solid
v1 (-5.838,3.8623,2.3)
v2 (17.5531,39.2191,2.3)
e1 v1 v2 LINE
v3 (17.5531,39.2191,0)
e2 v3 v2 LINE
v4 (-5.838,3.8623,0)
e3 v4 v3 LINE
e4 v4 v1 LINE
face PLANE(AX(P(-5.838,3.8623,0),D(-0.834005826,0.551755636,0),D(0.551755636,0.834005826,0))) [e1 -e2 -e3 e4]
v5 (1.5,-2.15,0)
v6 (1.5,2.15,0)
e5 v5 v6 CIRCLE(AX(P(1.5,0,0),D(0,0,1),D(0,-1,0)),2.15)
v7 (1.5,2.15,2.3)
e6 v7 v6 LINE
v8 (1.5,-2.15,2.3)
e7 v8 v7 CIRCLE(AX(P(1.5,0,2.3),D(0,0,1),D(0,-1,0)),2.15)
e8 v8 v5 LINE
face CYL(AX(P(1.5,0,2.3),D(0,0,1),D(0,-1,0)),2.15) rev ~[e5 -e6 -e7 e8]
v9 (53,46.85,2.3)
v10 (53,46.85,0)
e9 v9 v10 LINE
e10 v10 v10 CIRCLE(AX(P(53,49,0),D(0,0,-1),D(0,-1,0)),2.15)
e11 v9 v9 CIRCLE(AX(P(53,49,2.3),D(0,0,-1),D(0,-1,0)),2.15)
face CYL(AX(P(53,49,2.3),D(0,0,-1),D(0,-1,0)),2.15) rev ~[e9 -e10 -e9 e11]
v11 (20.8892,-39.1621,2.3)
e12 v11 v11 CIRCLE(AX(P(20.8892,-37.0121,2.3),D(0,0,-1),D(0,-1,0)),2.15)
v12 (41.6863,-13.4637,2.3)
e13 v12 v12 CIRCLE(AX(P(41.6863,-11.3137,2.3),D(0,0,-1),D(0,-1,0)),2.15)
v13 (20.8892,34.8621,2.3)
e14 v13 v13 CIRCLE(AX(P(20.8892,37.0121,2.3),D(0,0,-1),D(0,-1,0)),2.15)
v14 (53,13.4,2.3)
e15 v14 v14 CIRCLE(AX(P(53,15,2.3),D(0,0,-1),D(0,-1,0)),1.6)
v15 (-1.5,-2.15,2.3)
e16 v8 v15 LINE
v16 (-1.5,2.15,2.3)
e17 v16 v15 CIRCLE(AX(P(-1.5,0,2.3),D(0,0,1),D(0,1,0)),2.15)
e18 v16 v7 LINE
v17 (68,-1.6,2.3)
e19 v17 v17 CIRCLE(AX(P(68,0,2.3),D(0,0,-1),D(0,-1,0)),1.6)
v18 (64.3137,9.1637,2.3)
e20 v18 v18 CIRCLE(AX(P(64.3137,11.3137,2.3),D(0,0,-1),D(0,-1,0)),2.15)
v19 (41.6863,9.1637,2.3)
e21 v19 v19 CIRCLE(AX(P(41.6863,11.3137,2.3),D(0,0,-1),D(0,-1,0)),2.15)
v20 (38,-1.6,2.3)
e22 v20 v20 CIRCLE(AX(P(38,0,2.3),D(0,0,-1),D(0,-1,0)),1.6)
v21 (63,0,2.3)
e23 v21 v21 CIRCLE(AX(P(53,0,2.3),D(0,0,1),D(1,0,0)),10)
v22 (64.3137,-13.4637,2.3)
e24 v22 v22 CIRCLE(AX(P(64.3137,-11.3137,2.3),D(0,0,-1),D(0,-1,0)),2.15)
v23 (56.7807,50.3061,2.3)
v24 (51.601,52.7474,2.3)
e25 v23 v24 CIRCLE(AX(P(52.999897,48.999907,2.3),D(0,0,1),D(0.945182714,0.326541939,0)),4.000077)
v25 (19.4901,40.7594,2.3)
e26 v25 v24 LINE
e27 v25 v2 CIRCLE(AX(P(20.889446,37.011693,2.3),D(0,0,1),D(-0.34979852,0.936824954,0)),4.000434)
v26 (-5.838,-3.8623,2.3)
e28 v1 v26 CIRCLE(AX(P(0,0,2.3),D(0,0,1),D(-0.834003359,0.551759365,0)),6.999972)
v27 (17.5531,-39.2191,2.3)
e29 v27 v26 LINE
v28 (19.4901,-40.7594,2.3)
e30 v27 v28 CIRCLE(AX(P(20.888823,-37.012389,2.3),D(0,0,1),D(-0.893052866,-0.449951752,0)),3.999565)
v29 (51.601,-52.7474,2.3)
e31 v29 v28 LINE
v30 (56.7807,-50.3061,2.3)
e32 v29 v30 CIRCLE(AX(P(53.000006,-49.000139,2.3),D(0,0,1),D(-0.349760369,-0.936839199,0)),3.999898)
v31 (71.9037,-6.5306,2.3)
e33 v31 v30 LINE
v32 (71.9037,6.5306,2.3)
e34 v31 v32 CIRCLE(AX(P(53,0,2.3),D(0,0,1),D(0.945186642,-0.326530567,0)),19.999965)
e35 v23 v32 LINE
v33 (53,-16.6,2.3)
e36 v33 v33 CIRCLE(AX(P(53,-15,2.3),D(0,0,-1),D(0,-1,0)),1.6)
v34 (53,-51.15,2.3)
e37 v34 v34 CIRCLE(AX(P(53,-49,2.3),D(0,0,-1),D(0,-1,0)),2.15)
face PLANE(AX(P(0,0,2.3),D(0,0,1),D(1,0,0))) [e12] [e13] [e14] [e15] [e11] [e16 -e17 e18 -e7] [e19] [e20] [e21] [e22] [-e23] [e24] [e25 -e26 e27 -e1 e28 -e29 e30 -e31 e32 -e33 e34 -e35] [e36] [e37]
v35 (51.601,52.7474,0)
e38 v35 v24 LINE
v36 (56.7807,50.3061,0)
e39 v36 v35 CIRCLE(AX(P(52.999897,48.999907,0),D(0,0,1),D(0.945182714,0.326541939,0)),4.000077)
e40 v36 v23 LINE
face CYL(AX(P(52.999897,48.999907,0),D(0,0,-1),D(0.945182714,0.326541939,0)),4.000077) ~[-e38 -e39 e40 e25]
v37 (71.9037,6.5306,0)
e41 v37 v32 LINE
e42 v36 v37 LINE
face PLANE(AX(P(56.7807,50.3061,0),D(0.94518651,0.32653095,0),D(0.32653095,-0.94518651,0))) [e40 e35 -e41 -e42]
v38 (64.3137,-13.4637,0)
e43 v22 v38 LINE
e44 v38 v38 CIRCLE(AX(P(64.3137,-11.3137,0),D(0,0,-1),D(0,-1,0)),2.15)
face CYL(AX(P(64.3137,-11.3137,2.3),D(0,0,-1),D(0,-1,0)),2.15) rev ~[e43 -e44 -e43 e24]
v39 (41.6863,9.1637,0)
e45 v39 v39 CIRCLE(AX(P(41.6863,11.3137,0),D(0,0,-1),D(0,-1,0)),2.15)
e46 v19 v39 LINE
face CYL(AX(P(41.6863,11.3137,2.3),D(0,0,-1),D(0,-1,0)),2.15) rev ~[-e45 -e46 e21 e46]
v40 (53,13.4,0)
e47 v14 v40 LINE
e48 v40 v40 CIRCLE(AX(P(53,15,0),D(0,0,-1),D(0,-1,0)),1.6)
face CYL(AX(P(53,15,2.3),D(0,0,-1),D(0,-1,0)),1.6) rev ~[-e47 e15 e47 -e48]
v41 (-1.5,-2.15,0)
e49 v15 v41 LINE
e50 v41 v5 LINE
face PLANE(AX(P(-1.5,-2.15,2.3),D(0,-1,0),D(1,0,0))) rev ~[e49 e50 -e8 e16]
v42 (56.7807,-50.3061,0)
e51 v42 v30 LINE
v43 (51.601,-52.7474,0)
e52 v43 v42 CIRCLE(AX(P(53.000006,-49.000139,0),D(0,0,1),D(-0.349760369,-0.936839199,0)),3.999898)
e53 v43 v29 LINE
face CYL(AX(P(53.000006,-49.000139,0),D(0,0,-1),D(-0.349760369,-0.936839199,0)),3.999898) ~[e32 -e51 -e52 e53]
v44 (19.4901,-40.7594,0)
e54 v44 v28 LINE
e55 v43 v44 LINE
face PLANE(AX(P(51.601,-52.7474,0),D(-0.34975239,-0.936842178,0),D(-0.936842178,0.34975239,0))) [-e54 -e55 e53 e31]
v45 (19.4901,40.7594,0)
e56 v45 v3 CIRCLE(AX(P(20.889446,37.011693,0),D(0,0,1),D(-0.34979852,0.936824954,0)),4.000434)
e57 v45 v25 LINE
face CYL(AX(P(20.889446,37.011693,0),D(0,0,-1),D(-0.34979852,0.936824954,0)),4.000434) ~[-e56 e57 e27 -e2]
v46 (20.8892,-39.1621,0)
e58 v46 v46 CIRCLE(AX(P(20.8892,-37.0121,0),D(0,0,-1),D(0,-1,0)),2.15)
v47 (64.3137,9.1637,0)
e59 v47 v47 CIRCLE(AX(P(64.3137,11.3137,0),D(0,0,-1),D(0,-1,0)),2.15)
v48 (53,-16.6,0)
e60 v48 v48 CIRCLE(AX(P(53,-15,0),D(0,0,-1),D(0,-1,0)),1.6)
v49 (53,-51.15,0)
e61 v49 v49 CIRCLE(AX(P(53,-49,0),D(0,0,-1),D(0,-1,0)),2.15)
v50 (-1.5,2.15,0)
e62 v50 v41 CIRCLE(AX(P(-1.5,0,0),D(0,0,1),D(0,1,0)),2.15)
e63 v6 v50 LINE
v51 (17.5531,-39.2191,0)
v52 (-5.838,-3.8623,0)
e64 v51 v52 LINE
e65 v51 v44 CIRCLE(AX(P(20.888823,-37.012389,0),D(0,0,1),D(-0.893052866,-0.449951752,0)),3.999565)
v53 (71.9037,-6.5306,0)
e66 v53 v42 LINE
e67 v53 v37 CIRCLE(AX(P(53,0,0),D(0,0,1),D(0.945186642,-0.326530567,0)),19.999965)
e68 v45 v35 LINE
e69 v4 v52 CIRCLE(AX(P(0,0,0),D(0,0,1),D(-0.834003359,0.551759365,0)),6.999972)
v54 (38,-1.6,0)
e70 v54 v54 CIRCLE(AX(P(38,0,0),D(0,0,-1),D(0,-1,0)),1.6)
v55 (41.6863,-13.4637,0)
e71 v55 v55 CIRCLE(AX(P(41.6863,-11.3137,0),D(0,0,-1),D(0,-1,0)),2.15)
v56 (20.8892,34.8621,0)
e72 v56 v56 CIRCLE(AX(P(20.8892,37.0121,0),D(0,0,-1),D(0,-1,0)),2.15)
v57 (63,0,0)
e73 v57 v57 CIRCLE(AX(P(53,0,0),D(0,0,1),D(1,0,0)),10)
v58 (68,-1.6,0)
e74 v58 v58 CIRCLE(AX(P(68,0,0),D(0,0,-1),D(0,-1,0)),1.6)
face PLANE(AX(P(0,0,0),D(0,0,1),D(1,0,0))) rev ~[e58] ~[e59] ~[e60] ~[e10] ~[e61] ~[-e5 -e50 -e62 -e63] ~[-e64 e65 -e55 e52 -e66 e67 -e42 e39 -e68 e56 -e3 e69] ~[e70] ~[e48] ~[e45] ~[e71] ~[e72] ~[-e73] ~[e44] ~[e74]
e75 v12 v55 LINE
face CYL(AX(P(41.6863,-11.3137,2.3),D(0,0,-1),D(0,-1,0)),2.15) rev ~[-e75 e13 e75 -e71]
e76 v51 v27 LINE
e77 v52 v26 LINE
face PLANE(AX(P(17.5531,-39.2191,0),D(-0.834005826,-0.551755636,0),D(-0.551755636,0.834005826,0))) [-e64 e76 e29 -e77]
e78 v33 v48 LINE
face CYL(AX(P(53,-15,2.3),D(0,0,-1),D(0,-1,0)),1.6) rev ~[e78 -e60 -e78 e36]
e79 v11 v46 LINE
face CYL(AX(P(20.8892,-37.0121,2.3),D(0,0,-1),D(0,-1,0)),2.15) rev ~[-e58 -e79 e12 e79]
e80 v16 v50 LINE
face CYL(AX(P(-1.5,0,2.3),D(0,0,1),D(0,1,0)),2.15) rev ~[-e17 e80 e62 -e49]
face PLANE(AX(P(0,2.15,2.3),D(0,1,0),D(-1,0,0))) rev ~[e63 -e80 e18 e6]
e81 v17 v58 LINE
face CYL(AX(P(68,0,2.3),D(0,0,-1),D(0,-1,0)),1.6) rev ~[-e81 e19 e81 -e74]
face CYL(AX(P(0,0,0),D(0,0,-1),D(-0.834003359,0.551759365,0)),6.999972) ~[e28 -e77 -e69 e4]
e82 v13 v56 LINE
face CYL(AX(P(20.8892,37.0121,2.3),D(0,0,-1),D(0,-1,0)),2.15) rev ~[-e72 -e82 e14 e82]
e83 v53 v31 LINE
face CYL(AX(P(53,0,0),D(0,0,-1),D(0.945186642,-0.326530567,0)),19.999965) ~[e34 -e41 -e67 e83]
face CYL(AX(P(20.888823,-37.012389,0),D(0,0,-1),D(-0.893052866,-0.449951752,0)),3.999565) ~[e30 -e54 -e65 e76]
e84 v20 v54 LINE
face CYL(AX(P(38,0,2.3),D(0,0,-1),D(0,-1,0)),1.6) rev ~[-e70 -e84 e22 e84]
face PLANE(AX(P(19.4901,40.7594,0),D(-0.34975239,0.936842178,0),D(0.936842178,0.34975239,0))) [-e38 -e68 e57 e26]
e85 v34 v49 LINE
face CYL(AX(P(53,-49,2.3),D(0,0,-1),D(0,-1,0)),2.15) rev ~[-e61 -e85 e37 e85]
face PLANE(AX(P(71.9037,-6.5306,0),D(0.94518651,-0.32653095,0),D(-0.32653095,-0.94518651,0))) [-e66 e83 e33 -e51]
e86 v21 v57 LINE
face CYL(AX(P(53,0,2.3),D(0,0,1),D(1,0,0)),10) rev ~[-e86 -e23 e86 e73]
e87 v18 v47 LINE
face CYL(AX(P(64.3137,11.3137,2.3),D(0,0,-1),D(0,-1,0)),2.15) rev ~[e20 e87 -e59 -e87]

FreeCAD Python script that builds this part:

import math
import FreeCAD as App
import Part
import Sketcher
from FreeCAD import Vector
Q = App.Units.Quantity

doc = App.newDocument("Part")
body = doc.addObject("PartDesign::Body", "Body")

# Sketch on XY plane
sketch1 = doc.addObject("Sketcher::SketchObject", "Sketch")
body.addObject(sketch1)
sketch1.AttachmentSupport = (doc.XY_Plane, [""])
sketch1.MapMode = "FlatFace"
sketch1.addGeometry([
    Part.LineSegment(Vector(56.7807, -50.3061, 0), Vector(71.9037, -6.5306, 0)),  # 0
    Part.ArcOfCircle(Part.Circle(Vector(53, 0, 0), Vector(0, 0, 1), 19.999965), math.radians(-19.05833), math.radians(19.05833)),  # 1
    Part.LineSegment(Vector(71.9037, 6.5306, 0), Vector(56.7807, 50.3061, 0)),  # 2
    Part.ArcOfCircle(Part.Circle(Vector(53, 49, 0), Vector(0, 0, 1), 3.999949), math.radians(19.058246), math.radians(110.471886)),  # 3
    Part.LineSegment(Vector(51.601, 52.7474, 0), Vector(19.4901, 40.7594, 0)),  # 4
    Part.ArcOfCircle(Part.Circle(Vector(20.8892, 37.0121, 0), Vector(0, 0, 1), 3.999967), math.radians(110.473729), math.radians(146.513335)),  # 5
    Part.LineSegment(Vector(17.5531, 39.2191, 0), Vector(-5.838, 3.8623, 0)),  # 6
    Part.ArcOfCircle(Part.Circle(Vector(0, 0, 0), Vector(0, 0, 1), 6.999972), math.radians(146.512203), math.radians(213.487797)),  # 7
    Part.LineSegment(Vector(-5.838, -3.8623, 0), Vector(17.5531, -39.2191, 0)),  # 8
    Part.ArcOfCircle(Part.Circle(Vector(20.8892, -37.0121, 0), Vector(0, 0, 1), 4.000032), math.radians(-146.513335), math.radians(-110.473729)),  # 9
    Part.LineSegment(Vector(19.4901, -40.7594, 0), Vector(51.601, -52.7474, 0)),  # 10
    Part.ArcOfCircle(Part.Circle(Vector(53, -49, 0), Vector(0, 0, 1), 4.000026), math.radians(-110.471886), math.radians(-19.058246)),  # 11
], False)
sketch1.addConstraint([
    Sketcher.Constraint("Tangent", 0, 2, 1, 1),
    Sketcher.Constraint("Tangent", 1, 2, 2, 1),
    Sketcher.Constraint("Tangent", 2, 2, 3, 1),
    Sketcher.Constraint("Tangent", 3, 2, 4, 1),
    Sketcher.Constraint("Tangent", 4, 2, 5, 1),
    Sketcher.Constraint("Tangent", 5, 2, 6, 1),
    Sketcher.Constraint("Tangent", 6, 2, 7, 1),
    Sketcher.Constraint("Tangent", 7, 2, 8, 1),
    Sketcher.Constraint("Tangent", 8, 2, 9, 1),
    Sketcher.Constraint("Tangent", 9, 2, 10, 1),
    Sketcher.Constraint("Tangent", 10, 2, 11, 1),
    Sketcher.Constraint("Tangent", 11, 2, 0, 1),
    Sketcher.Constraint("Coincident", 7, 3, -1, 1),
    Sketcher.Constraint("Equal", 3, 5),
    Sketcher.Constraint("Equal", 5, 9),
    Sketcher.Constraint("Equal", 9, 11),
    Sketcher.Constraint("Symmetric", 5, 3, 9, 3, -1),
    Sketcher.Constraint("Symmetric", 3, 3, 11, 3, -1),
    Sketcher.Constraint("PointOnObject", 1, 3, -1),
    Sketcher.Constraint("Vertical", 1, 3, 3, 3),
    Sketcher.Constraint("Radius", 1, Q("20 mm")),
    Sketcher.Constraint("Radius", 3, Q("4 mm")),
    Sketcher.Constraint("Radius", 7, Q("7 mm")),
    Sketcher.Constraint("DistanceX", -1, 1, 1, 3, Q("53 mm")),
    Sketcher.Constraint("DistanceY", 11, 3, 3, 3, Q("98 mm")),
    Sketcher.Constraint("DistanceX", -1, 1, 4, 2, Q("19.49 mm")),
    Sketcher.Constraint("Distance", 6, Q("42.394 mm")),
])
pad1 = doc.addObject("PartDesign::Pad", "Pad")
body.addObject(pad1)
pad1.Profile = sketch1
pad1.Length = 2.3

# Sketch on XY plane
sketch2 = doc.addObject("Sketcher::SketchObject", "Sketch001")
body.addObject(sketch2)
sketch2.AttachmentSupport = (doc.XY_Plane, [""])
sketch2.MapMode = "FlatFace"
sketch2.AttachmentOffset = App.Placement(Vector(0, 0, 2.3), App.Rotation())
sketch2.addGeometry([
    Part.Circle(Vector(53, 49, 0), Vector(0, 0, 1), 2.15),
    Part.Circle(Vector(53, -49, 0), Vector(0, 0, 1), 2.15),
    Part.Circle(Vector(20.8892, 37.0121, 0), Vector(0, 0, 1), 2.15),
    Part.Circle(Vector(20.8892, -37.0121, 0), Vector(0, 0, 1), 2.15),
], False)
sketch2.addConstraint([
    Sketcher.Constraint("Equal", 0, 1),
    Sketcher.Constraint("Equal", 1, 2),
    Sketcher.Constraint("Equal", 2, 3),
    Sketcher.Constraint("Symmetric", 0, 3, 1, 3, -1),
    Sketcher.Constraint("Symmetric", 2, 3, 3, 3, -1),
    Sketcher.Constraint("Diameter", 0, Q("4.3 mm")),
    Sketcher.Constraint("DistanceX", -1, 1, 0, 3, Q("53 mm")),
    Sketcher.Constraint("DistanceY", -1, 1, 0, 3, Q("49 mm")),
    Sketcher.Constraint("DistanceY", -1, 1, 2, 3, Q("37.012 mm")),
    Sketcher.Constraint("DistanceX", -1, 1, 2, 3, Q("20.8892 mm")),
])
doc.recompute()
hole = doc.addObject("PartDesign::Hole", "Hole")
body.addObject(hole)
hole.Profile = sketch2
hole.ThreadType = "None"
hole.Diameter = 4.3
hole.DepthType = "Dimension"
hole.Depth = 2.3
hole.DrillPoint = "Flat"

# Sketch on XY plane
sketch3 = doc.addObject("Sketcher::SketchObject", "Sketch002")
body.addObject(sketch3)
sketch3.AttachmentSupport = (doc.XY_Plane, [""])
sketch3.MapMode = "FlatFace"
sketch3.AttachmentOffset = App.Placement(Vector(0, 0, 2.3), App.Rotation())
sketch3.addGeometry(Part.Circle(Vector(53, 0, 0), Vector(0, 0, 1), 10), False)
sketch3.addConstraint([
    Sketcher.Constraint("PointOnObject", 0, 3, -1),
    Sketcher.Constraint("Diameter", 0, Q("20 mm")),
    Sketcher.Constraint("DistanceX", -1, 1, 0, 3, Q("53 mm")),
])
pocket1 = doc.addObject("PartDesign::Pocket", "Pocket")
body.addObject(pocket1)
pocket1.Profile = sketch3
pocket1.Length = 10

# Sketch on XY plane
sketch4 = doc.addObject("Sketcher::SketchObject", "Sketch003")
body.addObject(sketch4)
sketch4.AttachmentSupport = (doc.XY_Plane, [""])
sketch4.MapMode = "FlatFace"
sketch4.AttachmentOffset = App.Placement(Vector(0, 0, 2.3), App.Rotation())
sketch4.addGeometry([
    Part.Circle(Vector(38, 0, 0), Vector(0, 0, 1), 1.6),
    Part.Circle(Vector(53, -15, 0), Vector(0, 0, 1), 1.6),
    Part.Circle(Vector(68, 0, 0), Vector(0, 0, 1), 1.6),
    Part.Circle(Vector(53, 15, 0), Vector(0, 0, 1), 1.6),
], False)
sketch4.addConstraint([
    Sketcher.Constraint("Equal", 0, 1),
    Sketcher.Constraint("Equal", 1, 2),
    Sketcher.Constraint("Equal", 2, 3),
    Sketcher.Constraint("Symmetric", 1, 3, 3, 3, -1),
    Sketcher.Constraint("PointOnObject", 0, 3, -1),
    Sketcher.Constraint("PointOnObject", 2, 3, -1),
    Sketcher.Constraint("Diameter", 0, Q("3.2 mm")),
    Sketcher.Constraint("DistanceX", -1, 1, 0, 3, Q("38 mm")),
    Sketcher.Constraint("DistanceX", -1, 1, 1, 3, Q("53 mm")),
    Sketcher.Constraint("DistanceY", 1, 3, -1, 1, Q("15 mm")),
    Sketcher.Constraint("DistanceX", -1, 1, 2, 3, Q("68 mm")),
])
doc.recompute()
hole2 = doc.addObject("PartDesign::Hole", "Hole001")
body.addObject(hole2)
hole2.Profile = sketch4
hole2.ThreadType = "None"
hole2.Diameter = 3.2
hole2.DepthType = "Dimension"
hole2.Depth = 2.3
hole2.DrillPoint = "Flat"

# Sketch on XY plane
sketch5 = doc.addObject("Sketcher::SketchObject", "Sketch004")
body.addObject(sketch5)
sketch5.AttachmentSupport = (doc.XY_Plane, [""])
sketch5.MapMode = "FlatFace"
sketch5.AttachmentOffset = App.Placement(Vector(0, 0, 2.3), App.Rotation())
sketch5.addGeometry([
    Part.Circle(Vector(41.6863, 11.3137, 0), Vector(0, 0, 1), 2.15),
    Part.Circle(Vector(41.6863, -11.3137, 0), Vector(0, 0, 1), 2.15),
    Part.Circle(Vector(64.3137, -11.3137, 0), Vector(0, 0, 1), 2.15),
    Part.Circle(Vector(64.3137, 11.3137, 0), Vector(0, 0, 1), 2.15),
], False)
sketch5.addConstraint([
    Sketcher.Constraint("Equal", 0, 1),
    Sketcher.Constraint("Equal", 1, 2),
    Sketcher.Constraint("Equal", 2, 3),
    Sketcher.Constraint("Symmetric", 0, 3, 1, 3, -1),
    Sketcher.Constraint("Symmetric", 2, 3, 3, 3, -1),
    Sketcher.Constraint("Horizontal", 1, 3, 2, 3),
    Sketcher.Constraint("Diameter", 0, Q("4.3 mm")),
    Sketcher.Constraint("DistanceX", -1, 1, 0, 3, Q("41.6863 mm")),
    Sketcher.Constraint("DistanceY", -1, 1, 0, 3, Q("11.3137 mm")),
    Sketcher.Constraint("DistanceX", -1, 1, 2, 3, Q("64.3137 mm")),
])
doc.recompute()
hole3 = doc.addObject("PartDesign::Hole", "Hole002")
body.addObject(hole3)
hole3.Profile = sketch5
hole3.ThreadType = "None"
hole3.Diameter = 4.3
hole3.DepthType = "Dimension"
hole3.Depth = 2.3
hole3.DrillPoint = "Flat"

# Sketch on XY plane
sketch6 = doc.addObject("Sketcher::SketchObject", "Sketch005")
body.addObject(sketch6)
sketch6.AttachmentSupport = (doc.XY_Plane, [""])
sketch6.MapMode = "FlatFace"
sketch6.AttachmentOffset = App.Placement(Vector(0, 0, 2.3), App.Rotation())
sketch6.addGeometry(Part.Circle(Vector(0, 0, 0), Vector(0, 0, 1), 2.15), False)
sketch6.addConstraint([
    Sketcher.Constraint("Coincident", 0, 3, -1, 1),
    Sketcher.Constraint("Diameter", 0, Q("4.3 mm")),
])
doc.recompute()
hole4 = doc.addObject("PartDesign::Hole", "Hole003")
body.addObject(hole4)
hole4.Profile = sketch6
hole4.ThreadType = "None"
hole4.Diameter = 4.3
hole4.DepthType = "Dimension"
hole4.Depth = 2.3
hole4.DrillPoint = "Flat"

# Sketch on XY plane
sketch7 = doc.addObject("Sketcher::SketchObject", "Sketch006")
body.addObject(sketch7)
sketch7.AttachmentSupport = (doc.XY_Plane, [""])
sketch7.MapMode = "FlatFace"
sketch7.AttachmentOffset = App.Placement(Vector(0, 0, 2.3), App.Rotation())
sketch7.addGeometry([
    Part.ArcOfCircle(Part.Circle(Vector(-1.5, 0, 0), Vector(0, 0, 1), 2.15), math.radians(90), math.radians(270)),
    Part.LineSegment(Vector(-1.5, -2.15, 0), Vector(1.5, -2.15, 0)),
    Part.ArcOfCircle(Part.Circle(Vector(1.5, 0, 0), Vector(0, 0, 1), 2.15), math.radians(-90), math.radians(90)),
    Part.LineSegment(Vector(1.5, 2.15, 0), Vector(-1.5, 2.15, 0)),
], False)
sketch7.addConstraint([
    Sketcher.Constraint("Tangent", 0, 2, 1, 1),
    Sketcher.Constraint("Tangent", 1, 2, 2, 1),
    Sketcher.Constraint("Tangent", 2, 2, 3, 1),
    Sketcher.Constraint("Tangent", 3, 2, 0, 1),
    Sketcher.Constraint("Horizontal", 1),
    Sketcher.Constraint("Horizontal", 3),
    Sketcher.Constraint("Symmetric", 0, 3, 2, 3, -1, 1),
    Sketcher.Constraint("DistanceX", 1, 1, 1, 2, Q("3 mm")),
    Sketcher.Constraint("Radius", 0, Q("2.15 mm")),
])
pocket2 = doc.addObject("PartDesign::Pocket", "Pocket001")
body.addObject(pocket2)
pocket2.Profile = sketch7
pocket2.Length = 10

doc.recompute()
